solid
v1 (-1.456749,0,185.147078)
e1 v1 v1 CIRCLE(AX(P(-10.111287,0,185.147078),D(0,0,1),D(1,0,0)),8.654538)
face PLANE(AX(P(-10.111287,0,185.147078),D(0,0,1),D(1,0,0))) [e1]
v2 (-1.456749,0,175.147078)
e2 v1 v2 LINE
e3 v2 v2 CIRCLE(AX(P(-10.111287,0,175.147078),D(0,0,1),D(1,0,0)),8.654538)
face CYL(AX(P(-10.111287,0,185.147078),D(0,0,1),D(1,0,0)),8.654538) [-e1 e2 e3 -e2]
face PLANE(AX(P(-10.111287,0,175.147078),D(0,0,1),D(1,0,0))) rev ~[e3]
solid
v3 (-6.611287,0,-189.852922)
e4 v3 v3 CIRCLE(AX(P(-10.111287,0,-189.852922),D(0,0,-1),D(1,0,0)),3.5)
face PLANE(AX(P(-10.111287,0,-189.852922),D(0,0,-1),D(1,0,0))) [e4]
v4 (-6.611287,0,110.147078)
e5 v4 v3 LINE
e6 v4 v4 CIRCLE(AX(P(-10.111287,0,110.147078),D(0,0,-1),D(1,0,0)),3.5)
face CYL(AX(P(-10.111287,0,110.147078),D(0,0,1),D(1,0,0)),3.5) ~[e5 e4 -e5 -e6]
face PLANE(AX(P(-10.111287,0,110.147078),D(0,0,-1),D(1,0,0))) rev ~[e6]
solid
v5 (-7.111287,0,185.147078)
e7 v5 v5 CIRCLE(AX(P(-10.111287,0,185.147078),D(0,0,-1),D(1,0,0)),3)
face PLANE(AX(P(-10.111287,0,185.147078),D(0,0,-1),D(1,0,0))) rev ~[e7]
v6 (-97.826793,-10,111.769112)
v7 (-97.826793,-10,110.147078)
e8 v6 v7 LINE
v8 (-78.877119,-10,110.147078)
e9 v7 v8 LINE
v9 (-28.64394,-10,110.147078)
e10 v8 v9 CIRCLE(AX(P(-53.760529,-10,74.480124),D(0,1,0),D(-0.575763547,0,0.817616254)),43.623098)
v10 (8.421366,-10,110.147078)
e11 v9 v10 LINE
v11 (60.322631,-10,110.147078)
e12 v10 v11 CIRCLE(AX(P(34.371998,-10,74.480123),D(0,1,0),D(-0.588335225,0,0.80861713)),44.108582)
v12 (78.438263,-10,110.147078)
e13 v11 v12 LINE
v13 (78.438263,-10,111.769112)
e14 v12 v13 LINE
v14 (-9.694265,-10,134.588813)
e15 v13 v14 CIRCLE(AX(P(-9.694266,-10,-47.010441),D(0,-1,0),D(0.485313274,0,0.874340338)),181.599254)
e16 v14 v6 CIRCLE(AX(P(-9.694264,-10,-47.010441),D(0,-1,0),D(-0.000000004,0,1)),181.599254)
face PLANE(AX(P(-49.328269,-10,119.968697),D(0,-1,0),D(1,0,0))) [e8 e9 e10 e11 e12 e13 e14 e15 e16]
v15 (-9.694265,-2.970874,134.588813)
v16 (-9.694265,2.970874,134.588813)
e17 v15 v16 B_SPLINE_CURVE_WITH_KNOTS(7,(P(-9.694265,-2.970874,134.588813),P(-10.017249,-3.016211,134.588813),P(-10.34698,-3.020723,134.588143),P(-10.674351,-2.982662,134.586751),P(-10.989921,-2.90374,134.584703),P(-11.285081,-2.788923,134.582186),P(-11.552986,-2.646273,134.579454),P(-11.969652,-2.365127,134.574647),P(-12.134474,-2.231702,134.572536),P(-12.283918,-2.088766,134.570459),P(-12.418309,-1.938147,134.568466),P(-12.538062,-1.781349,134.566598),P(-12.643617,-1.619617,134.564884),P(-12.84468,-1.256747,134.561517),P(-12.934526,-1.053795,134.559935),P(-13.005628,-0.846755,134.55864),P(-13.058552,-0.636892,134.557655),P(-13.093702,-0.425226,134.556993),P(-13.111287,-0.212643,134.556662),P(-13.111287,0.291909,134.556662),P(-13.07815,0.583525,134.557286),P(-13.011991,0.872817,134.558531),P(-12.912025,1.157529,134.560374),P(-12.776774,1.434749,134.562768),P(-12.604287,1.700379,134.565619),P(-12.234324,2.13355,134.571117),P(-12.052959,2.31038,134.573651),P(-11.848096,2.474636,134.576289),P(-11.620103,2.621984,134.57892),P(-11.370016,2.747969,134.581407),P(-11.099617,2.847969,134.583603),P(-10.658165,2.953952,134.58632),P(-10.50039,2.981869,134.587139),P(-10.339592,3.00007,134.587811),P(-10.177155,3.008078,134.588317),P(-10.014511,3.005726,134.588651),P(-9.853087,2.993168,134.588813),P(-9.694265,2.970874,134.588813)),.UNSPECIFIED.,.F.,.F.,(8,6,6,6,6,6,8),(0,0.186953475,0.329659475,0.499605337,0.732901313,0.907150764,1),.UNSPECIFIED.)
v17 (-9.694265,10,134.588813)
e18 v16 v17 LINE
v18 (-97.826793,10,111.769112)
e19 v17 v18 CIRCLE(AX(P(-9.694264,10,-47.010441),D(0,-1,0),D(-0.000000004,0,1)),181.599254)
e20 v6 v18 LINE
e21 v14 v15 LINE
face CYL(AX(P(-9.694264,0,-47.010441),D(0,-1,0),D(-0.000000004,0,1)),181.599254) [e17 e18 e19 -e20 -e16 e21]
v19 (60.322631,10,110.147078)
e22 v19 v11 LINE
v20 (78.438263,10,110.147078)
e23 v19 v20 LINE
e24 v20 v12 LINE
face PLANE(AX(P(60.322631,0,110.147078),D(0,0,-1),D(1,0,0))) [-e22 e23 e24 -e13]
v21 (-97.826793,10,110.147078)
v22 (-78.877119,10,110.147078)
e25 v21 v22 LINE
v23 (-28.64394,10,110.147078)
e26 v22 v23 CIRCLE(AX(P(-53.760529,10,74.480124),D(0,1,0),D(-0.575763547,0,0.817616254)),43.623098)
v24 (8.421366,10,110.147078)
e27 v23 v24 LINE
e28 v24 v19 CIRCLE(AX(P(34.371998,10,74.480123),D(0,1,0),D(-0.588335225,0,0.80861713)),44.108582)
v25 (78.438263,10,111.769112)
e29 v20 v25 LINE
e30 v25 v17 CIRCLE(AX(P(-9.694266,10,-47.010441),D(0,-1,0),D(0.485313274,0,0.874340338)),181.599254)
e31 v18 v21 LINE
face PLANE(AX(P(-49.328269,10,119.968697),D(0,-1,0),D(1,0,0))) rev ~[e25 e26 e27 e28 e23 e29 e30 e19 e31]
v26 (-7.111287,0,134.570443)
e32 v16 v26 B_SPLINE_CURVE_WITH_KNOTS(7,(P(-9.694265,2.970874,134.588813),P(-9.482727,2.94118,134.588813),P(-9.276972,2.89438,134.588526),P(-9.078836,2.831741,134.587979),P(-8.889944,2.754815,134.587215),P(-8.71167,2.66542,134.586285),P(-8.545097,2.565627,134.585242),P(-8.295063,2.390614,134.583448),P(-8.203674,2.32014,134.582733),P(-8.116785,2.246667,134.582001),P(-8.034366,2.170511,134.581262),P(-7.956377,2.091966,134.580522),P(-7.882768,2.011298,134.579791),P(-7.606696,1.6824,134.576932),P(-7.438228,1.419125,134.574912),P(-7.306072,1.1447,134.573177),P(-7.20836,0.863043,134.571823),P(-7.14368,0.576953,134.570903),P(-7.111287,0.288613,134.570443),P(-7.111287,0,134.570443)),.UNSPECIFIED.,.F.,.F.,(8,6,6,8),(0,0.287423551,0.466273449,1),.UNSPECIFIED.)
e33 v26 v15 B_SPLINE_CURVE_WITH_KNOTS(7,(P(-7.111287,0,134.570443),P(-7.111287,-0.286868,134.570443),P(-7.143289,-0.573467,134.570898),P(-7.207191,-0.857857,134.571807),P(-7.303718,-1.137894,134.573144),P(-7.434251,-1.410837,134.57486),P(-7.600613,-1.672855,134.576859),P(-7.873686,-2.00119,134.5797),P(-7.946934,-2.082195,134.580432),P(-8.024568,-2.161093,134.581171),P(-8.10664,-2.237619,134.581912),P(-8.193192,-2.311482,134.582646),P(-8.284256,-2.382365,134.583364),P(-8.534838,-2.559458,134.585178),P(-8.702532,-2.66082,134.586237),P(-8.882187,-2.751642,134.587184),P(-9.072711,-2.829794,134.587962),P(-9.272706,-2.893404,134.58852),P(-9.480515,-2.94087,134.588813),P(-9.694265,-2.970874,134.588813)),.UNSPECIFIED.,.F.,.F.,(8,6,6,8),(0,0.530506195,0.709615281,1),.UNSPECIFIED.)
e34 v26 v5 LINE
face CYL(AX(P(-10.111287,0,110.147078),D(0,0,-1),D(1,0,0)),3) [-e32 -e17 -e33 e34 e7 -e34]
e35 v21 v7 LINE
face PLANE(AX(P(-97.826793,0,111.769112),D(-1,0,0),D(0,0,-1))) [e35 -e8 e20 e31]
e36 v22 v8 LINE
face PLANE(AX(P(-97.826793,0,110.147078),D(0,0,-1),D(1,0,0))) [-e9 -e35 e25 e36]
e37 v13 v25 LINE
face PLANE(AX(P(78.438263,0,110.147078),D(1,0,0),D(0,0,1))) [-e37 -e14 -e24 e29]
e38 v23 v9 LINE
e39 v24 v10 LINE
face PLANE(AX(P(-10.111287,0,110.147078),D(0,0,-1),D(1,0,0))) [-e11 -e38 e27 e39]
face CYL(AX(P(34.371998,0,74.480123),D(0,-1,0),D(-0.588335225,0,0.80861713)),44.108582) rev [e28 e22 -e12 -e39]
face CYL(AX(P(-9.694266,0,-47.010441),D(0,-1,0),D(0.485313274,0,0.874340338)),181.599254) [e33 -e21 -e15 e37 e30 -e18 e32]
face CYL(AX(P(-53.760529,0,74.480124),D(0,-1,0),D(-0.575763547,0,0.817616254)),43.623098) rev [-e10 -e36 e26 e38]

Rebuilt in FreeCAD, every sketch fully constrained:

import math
import FreeCAD as App
import Part
import Sketcher
from FreeCAD import Vector
Q = App.Units.Quantity

doc = App.newDocument("Part")
body = doc.addObject("PartDesign::Body", "Body")

# Sketch on XZ plane
sketch1 = body.newObject("Sketcher::SketchObject", "Sketch")
sketch1.AttachmentSupport = (doc.getObject("XZ_Plane"), [""])
sketch1.MapMode = "FlatFace"
sketch1.addGeometry([
    Part.LineSegment(Vector(-97.8, 111.8, 0), Vector(-97.8, 110.1, 0)),  # 0
    Part.LineSegment(Vector(-97.8, 110.1, 0), Vector(-78.9, 110.1, 0)),  # 1
    Part.ArcOfCircle(Part.Circle(Vector(-53.8, 74.5, 0), Vector(0, 0, 1), 43.6), math.radians(55), math.radians(125)),  # 2
    Part.LineSegment(Vector(-28.6, 110.1, 0), Vector(8.4, 110.1, 0)),  # 3
    Part.ArcOfCircle(Part.Circle(Vector(34.4, 74.5, 0), Vector(0, 0, 1), 44.1), math.radians(54), math.radians(126)),  # 4
    Part.LineSegment(Vector(60.3, 110.1, 0), Vector(78.4, 110.1, 0)),  # 5
    Part.LineSegment(Vector(78.4, 110.1, 0), Vector(78.4, 111.8, 0)),  # 6
    Part.ArcOfCircle(Part.Circle(Vector(-9.7, -47, 0), Vector(0, 0, 1), 181.6), math.radians(61), math.radians(90)),  # 7
    Part.ArcOfCircle(Part.Circle(Vector(-9.7, -47, 0), Vector(0, 0, 1), 181.6), math.radians(90), math.radians(119)),  # 8
], False)
sketch1.addConstraint([
    Sketcher.Constraint("Coincident", 0, 2, 1, 1),
    Sketcher.Constraint("Coincident", 1, 2, 2, 2),
    Sketcher.Constraint("Coincident", 2, 1, 3, 1),
    Sketcher.Constraint("Coincident", 3, 2, 4, 2),
    Sketcher.Constraint("Coincident", 4, 1, 5, 1),
    Sketcher.Constraint("Coincident", 5, 2, 6, 1),
    Sketcher.Constraint("Coincident", 6, 2, 7, 1),
    Sketcher.Constraint("Tangent", 7, 2, 8, 1),
    Sketcher.Constraint("Coincident", 8, 2, 0, 1),
    Sketcher.Constraint("Vertical", 0),
    Sketcher.Constraint("Horizontal", 1),
    Sketcher.Constraint("Horizontal", 3),
    Sketcher.Constraint("Horizontal", 5),
    Sketcher.Constraint("Vertical", 6),
    Sketcher.Constraint("Equal", 7, 8),
    Sketcher.Constraint("Horizontal", 2, 3, 4, 3),
    Sketcher.Constraint("Horizontal", 1, 2, 2, 1),
    Sketcher.Constraint("Horizontal", 3, 2, 4, 1),
    Sketcher.Constraint("Horizontal", 6, 2, 8, 2),
    Sketcher.Constraint("Vertical", 8, 3, 7, 2),
    Sketcher.Constraint("DistanceX", -1, 1, 4, 3, Q("34.371998 mm")),
    Sketcher.Constraint("Radius", 2, Q("43.623098 mm")),
    Sketcher.Constraint("Radius", 4, Q("44.108582 mm")),
    Sketcher.Constraint("Radius", 7, Q("181.599254 mm")),
    Sketcher.Constraint("DistanceY", 8, 2, 7, 2, Q("22.819701 mm")),
    Sketcher.Constraint("DistanceX", 1, 1, 1, 2, Q("18.949674 mm")),
    Sketcher.Constraint("DistanceX", 3, 1, 3, 2, Q("37.065306 mm")),
    Sketcher.Constraint("DistanceX", 5, 1, 5, 2, Q("18.115632 mm")),
    Sketcher.Constraint("DistanceY", 0, 2, 0, 1, Q("1.622034 mm")),
    Sketcher.Constraint("DistanceY", 7, 3, -1, 1, Q("47.010441 mm")),
])
pad1 = body.newObject("PartDesign::Pad", "Pad")
pad1.Profile = sketch1
pad1.Length = 20
pad1.Midplane = True

# Sketch on XY plane
sketch2 = body.newObject("Sketcher::SketchObject", "Sketch001")
sketch2.AttachmentSupport = (doc.getObject("XY_Plane"), [""])
sketch2.MapMode = "FlatFace"
sketch2.AttachmentOffset = App.Placement(Vector(0, 0, 110.147078), App.Rotation())
sketch2.addGeometry(Part.Circle(Vector(-10.1, 0, 0), Vector(0, 0, 1), 3), False)
sketch2.addConstraint([
    Sketcher.Constraint("PointOnObject", 0, 3, -1),
    Sketcher.Constraint("Diameter", 0, Q("6 mm")),
    Sketcher.Constraint("DistanceX", 0, 3, -1, 1, Q("10.111287 mm")),
])
pad2 = body.newObject("PartDesign::Pad", "Pad001")
pad2.Profile = sketch2
pad2.Length = 75
body2 = doc.addObject("PartDesign::Body", "Body001")

# Sketch on XY plane
sketch3 = body2.newObject("Sketcher::SketchObject", "Sketch002")
sketch3.AttachmentSupport = (doc.getObject("XY_Plane001"), [""])
sketch3.MapMode = "FlatFace"
sketch3.AttachmentOffset = App.Placement(Vector(0, 0, 110.147078), App.Rotation())
sketch3.addGeometry(Part.Circle(Vector(-10.1, 0, 0), Vector(0, 0, 1), 3.5), False)
sketch3.addConstraint([
    Sketcher.Constraint("PointOnObject", 0, 3, -1),
    Sketcher.Constraint("Diameter", 0, Q("7 mm")),
    Sketcher.Constraint("DistanceX", 0, 3, -1, 1, Q("10.111287 mm")),
])
pad3 = body2.newObject("PartDesign::Pad", "Pad002")
pad3.Profile = sketch3
pad3.Length = 300
pad3.Reversed = True
body3 = doc.addObject("PartDesign::Body", "Body002")

# Sketch on XY plane
sketch4 = body3.newObject("Sketcher::SketchObject", "Sketch003")
sketch4.AttachmentSupport = (doc.getObject("XY_Plane002"), [""])
sketch4.MapMode = "FlatFace"
sketch4.AttachmentOffset = App.Placement(Vector(0, 0, 185.147078), App.Rotation())
sketch4.addGeometry(Part.Circle(Vector(-10, 0, 0), Vector(0, 0, 1), 9), False)
sketch4.addConstraint([
    Sketcher.Constraint("PointOnObject", 0, 3, -1),
    Sketcher.Constraint("Diameter", 0, Q("17.309076 mm")),
    Sketcher.Constraint("DistanceX", 0, 3, -1, 1, Q("10.111287 mm")),
])
pad4 = body3.newObject("PartDesign::Pad", "Pad003")
pad4.Profile = sketch4
pad4.Length = 10
pad4.Reversed = True

doc.recompute()
